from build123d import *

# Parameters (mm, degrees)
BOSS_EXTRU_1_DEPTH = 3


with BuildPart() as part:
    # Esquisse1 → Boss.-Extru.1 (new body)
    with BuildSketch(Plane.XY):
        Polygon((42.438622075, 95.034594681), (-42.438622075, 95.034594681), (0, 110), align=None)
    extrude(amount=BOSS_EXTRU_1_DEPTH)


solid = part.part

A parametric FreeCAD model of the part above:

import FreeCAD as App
import Part
import Sketcher
from FreeCAD import Vector


def add_polygon(sketch, points):
    """Adds a closed chain of lines whose ends are joined by coincident constraints."""
    first, n = sketch.GeometryCount, len(points)
    for a, b in zip(points, points[1:] + points[:1]):
        sketch.addGeometry(Part.LineSegment(App.Vector(*a, 0), App.Vector(*b, 0)), False)
    for i in range(n):
        sketch.addConstraint(Sketcher.Constraint("Coincident", first + i, 2, first + (i + 1) % n, 1))

doc = App.newDocument("Part")
params = doc.addObject("Spreadsheet::Sheet", "Params")
for row, (alias, value) in enumerate([
    ("sketch1_length", "45 mm"),
    ("pad1_length", "3 mm"),
], start=1):
    params.set(f"A{row}", alias)
    params.set(f"B{row}", "=" + value)
    params.setAlias(f"B{row}", alias)

body = doc.addObject("PartDesign::Body", "Body")

# Sketch on XY plane
sketch1 = body.newObject("Sketcher::SketchObject", "Sketch")
sketch1.AttachmentSupport = (doc.getObject("XY_Plane"), [""])
sketch1.MapMode = "FlatFace"
add_polygon(sketch1, [(-42.438622, 95.034595), (42.438622, 95.034595), (0, 110)])  # lines 0-2
sketch1.addConstraint(Sketcher.Constraint("Horizontal", 0))
sketch1.addConstraint(Sketcher.Constraint("PointOnObject", 1, 2, -2))
sketch1.addConstraint(Sketcher.Constraint("Equal", 1, 2))
sketch1.addConstraint(Sketcher.Constraint("Distance", 1, 45.0))
sketch1.addConstraint(Sketcher.Constraint("DistanceY", -1, 1, 1, 2, 110.0))
sketch1.addConstraint(Sketcher.Constraint("DistanceX", 0, 1, 0, 2, 84.877244))
sketch1.setExpression("Constraints[6]", "Params.sketch1_length")
pad1 = body.newObject("PartDesign::Pad", "Pad")
pad1.Profile = sketch1
pad1.setExpression("Length", "Params.pad1_length")

doc.recompute()
